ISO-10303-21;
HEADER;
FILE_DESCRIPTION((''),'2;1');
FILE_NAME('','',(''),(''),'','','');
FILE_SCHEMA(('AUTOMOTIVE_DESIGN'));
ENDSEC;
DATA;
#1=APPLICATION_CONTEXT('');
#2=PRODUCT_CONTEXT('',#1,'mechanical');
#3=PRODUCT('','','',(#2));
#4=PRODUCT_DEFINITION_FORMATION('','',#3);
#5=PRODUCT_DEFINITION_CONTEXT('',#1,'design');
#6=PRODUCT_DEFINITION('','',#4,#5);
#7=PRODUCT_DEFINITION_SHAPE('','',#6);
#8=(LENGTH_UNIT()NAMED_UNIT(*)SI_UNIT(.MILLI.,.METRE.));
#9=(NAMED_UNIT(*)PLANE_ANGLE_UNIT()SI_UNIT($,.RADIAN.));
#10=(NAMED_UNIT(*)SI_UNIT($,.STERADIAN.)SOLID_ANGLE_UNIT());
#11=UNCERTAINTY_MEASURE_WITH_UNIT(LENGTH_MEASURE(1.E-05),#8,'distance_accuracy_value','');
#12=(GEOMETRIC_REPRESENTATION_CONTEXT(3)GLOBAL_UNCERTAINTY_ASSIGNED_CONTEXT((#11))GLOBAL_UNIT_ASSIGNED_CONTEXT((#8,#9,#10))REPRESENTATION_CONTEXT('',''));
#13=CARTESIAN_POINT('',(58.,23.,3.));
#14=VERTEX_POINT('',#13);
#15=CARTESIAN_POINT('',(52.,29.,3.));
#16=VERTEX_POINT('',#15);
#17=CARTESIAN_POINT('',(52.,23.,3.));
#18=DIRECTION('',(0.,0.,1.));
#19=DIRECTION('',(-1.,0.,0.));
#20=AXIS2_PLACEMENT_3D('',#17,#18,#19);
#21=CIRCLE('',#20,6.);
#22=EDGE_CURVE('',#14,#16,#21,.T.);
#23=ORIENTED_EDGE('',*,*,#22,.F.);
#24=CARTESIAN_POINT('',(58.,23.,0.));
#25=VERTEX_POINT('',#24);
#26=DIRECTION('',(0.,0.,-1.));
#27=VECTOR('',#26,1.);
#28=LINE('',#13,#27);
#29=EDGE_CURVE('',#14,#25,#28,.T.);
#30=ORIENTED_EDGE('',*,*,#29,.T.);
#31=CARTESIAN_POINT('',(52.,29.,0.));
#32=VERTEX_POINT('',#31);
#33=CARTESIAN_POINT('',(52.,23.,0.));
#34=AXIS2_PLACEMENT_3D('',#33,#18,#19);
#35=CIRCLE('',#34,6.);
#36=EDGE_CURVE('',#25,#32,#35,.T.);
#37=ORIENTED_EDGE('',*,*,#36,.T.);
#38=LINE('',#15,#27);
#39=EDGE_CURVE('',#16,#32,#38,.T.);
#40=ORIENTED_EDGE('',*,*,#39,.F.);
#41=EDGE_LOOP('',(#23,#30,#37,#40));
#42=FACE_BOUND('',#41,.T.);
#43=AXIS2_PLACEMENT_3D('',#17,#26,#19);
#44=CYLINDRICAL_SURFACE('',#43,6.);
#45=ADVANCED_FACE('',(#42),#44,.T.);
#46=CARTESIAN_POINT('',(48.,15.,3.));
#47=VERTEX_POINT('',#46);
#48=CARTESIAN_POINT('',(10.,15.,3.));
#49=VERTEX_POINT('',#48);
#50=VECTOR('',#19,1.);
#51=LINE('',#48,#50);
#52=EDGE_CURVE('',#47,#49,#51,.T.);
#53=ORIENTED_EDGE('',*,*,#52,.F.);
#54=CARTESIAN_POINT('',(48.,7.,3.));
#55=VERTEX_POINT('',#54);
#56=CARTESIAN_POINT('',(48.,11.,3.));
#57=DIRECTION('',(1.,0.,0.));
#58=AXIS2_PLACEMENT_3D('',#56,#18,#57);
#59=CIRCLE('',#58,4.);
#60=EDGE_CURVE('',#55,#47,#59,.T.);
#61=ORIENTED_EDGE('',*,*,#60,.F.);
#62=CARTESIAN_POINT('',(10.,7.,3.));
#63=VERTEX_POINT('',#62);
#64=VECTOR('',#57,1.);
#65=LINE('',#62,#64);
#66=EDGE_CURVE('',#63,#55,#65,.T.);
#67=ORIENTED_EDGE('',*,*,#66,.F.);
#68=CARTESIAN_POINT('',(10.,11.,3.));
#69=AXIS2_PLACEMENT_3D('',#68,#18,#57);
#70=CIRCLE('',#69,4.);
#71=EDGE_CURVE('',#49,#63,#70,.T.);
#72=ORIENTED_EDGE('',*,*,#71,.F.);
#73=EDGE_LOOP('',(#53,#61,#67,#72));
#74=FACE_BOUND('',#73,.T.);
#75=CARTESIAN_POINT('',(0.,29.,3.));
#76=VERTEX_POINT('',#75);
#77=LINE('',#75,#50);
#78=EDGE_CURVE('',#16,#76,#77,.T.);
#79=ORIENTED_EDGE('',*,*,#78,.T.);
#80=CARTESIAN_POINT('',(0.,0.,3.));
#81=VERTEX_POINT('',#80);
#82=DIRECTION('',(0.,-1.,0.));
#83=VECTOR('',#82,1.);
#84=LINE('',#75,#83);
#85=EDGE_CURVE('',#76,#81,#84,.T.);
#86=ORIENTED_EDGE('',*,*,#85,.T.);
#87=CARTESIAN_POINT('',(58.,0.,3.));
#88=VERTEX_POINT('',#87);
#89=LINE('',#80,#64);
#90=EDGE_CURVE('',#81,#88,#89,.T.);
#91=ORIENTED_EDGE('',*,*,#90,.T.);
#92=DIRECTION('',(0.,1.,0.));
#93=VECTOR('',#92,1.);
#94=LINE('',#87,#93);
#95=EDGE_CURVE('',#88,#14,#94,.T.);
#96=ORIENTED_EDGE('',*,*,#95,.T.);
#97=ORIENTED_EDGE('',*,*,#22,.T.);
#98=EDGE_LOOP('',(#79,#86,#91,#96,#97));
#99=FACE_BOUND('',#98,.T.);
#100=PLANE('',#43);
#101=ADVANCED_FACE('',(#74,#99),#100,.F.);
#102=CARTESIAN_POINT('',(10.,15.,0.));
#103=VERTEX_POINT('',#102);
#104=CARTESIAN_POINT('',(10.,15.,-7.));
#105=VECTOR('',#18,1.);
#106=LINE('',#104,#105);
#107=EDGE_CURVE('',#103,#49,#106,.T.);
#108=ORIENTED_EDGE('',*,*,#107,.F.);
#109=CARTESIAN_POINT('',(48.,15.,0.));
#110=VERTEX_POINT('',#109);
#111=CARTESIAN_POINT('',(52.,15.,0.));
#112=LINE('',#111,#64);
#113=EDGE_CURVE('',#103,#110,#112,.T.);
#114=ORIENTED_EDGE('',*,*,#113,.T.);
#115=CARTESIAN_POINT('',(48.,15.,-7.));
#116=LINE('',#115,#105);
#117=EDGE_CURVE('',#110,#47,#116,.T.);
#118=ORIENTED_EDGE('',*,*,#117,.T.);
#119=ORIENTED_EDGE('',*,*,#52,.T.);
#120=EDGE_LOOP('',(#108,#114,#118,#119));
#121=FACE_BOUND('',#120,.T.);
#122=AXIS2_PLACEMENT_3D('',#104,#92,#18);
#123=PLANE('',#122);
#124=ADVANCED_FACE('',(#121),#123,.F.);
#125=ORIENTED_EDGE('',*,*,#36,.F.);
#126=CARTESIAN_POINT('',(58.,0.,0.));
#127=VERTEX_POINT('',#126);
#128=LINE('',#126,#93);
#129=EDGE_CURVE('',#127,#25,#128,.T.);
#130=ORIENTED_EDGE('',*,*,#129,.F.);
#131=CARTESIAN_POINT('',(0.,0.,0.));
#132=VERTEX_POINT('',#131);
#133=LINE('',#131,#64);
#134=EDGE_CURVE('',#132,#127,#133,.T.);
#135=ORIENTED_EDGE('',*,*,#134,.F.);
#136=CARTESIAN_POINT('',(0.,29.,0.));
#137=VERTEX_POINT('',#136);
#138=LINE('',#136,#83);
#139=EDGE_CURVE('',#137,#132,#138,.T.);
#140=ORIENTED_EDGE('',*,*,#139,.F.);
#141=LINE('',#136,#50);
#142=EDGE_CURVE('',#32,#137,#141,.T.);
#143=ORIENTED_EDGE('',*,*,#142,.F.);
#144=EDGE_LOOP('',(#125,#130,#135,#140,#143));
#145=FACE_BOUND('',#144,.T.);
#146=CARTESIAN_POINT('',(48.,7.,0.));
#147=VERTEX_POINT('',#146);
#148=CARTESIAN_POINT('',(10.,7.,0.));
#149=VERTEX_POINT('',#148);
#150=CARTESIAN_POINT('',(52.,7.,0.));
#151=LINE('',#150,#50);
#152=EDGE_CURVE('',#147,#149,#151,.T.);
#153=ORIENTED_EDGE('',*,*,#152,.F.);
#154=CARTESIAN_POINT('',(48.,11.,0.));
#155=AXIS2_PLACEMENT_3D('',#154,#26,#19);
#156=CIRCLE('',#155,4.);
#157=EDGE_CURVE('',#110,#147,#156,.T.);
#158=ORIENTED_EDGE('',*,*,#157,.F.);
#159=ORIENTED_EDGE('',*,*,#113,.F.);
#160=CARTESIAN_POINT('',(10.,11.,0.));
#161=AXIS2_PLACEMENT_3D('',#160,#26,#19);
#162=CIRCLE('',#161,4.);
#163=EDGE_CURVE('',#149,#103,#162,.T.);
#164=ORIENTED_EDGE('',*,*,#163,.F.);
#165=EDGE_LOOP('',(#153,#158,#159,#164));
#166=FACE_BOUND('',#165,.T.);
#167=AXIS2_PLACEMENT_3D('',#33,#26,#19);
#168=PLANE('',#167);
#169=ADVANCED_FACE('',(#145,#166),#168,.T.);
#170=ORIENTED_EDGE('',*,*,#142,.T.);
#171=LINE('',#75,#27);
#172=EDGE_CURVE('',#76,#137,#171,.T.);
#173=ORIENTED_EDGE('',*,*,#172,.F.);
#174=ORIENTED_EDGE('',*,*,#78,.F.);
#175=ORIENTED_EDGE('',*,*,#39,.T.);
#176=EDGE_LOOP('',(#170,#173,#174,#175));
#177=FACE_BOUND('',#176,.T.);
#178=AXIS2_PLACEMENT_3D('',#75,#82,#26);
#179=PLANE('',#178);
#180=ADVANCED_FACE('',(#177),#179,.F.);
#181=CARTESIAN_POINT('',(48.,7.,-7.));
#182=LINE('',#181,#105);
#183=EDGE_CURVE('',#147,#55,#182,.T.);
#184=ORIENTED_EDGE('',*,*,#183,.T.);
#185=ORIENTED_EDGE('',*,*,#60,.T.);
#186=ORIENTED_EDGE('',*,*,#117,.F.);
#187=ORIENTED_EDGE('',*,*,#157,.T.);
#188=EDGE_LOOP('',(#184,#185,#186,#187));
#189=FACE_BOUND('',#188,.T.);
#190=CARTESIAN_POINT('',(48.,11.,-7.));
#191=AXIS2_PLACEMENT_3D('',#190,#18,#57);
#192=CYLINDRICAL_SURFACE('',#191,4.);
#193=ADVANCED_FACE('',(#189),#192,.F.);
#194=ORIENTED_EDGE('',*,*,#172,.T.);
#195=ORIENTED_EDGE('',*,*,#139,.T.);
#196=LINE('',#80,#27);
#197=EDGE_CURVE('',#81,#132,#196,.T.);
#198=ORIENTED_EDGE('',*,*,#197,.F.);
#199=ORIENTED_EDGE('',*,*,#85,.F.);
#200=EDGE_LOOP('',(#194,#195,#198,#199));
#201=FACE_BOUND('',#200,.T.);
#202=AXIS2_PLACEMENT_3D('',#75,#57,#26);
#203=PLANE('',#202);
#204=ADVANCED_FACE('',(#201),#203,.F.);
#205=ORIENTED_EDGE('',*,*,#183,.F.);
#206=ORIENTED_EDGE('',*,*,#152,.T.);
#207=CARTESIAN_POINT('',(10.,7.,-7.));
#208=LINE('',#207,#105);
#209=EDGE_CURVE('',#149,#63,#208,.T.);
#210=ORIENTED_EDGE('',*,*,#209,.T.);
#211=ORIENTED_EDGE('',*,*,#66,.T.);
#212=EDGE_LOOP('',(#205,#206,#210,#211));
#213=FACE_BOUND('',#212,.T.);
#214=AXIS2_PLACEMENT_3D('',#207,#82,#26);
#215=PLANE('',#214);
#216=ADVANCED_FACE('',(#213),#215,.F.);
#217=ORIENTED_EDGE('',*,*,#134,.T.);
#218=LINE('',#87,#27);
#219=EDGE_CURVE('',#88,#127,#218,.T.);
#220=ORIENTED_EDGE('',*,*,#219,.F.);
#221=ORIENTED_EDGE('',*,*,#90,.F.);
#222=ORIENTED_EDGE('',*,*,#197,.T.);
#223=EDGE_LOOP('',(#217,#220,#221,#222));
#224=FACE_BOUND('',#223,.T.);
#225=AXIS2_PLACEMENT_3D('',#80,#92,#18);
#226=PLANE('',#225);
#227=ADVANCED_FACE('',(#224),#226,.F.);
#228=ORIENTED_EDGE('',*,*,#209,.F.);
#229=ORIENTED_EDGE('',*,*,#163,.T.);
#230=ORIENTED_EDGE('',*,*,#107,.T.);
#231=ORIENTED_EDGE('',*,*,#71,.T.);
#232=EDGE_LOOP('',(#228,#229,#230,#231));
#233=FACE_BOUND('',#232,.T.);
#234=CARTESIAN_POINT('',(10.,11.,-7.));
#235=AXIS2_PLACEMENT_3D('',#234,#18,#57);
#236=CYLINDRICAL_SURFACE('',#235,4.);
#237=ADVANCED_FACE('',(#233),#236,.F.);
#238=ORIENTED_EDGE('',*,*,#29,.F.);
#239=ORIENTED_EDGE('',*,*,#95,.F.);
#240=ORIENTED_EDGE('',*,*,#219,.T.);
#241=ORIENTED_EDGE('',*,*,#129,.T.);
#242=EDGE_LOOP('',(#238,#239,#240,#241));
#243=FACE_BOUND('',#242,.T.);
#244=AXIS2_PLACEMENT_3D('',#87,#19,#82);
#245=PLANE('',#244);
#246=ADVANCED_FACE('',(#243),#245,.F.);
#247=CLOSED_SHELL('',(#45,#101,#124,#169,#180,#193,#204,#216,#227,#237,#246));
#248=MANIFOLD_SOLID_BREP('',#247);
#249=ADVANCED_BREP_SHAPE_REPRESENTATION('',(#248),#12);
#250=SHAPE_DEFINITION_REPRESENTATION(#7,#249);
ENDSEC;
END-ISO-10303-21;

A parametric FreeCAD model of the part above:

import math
import FreeCAD as App
import Part
import Sketcher
from FreeCAD import Vector
Q = App.Units.Quantity

doc = App.newDocument("Part")
params = doc.addObject("Spreadsheet::Sheet", "Params")
for row, (alias, value) in enumerate([
    ("sketch1_radius", "6 mm"),
    ("sketch1_width", "52 mm"),
    ("sketch1_height", "29 mm"),
    ("pad1_length", "3 mm"),
    ("sketch2_radius", "4 mm"),
    ("sketch2_width", "38 mm"),
    ("pocket1_length", "10 mm"),
], start=1):
    params.set(f"A{row}", alias)
    params.set(f"B{row}", "=" + value)
    params.setAlias(f"B{row}", alias)

body = doc.addObject("PartDesign::Body", "Body")

sketch1 = doc.addObject("Sketcher::SketchObject", "Sketch")
body.addObject(sketch1)
sketch1.AttachmentSupport = (doc.XY_Plane, [""])
sketch1.MapMode = "FlatFace"
sketch1.addGeometry([
    Part.LineSegment(Vector(52, 29, 0), Vector(0, 29, 0)),
    Part.LineSegment(Vector(0, 29, 0), Vector(0, 0, 0)),
    Part.LineSegment(Vector(0, 0, 0), Vector(58, 0, 0)),
    Part.LineSegment(Vector(58, 0, 0), Vector(58, 23, 0)),
    Part.ArcOfCircle(Part.Circle(Vector(52, 23, 0), Vector(0, 0, 1), 6), math.radians(0), math.radians(90)),
], False)
sketch1.addConstraint([
    Sketcher.Constraint("Coincident", 0, 2, 1, 1),
    Sketcher.Constraint("Coincident", 1, 2, 2, 1),
    Sketcher.Constraint("Coincident", 2, 2, 3, 1),
    Sketcher.Constraint("Tangent", 3, 2, 4, 1),
    Sketcher.Constraint("Tangent", 4, 2, 0, 1),
    Sketcher.Constraint("Horizontal", 0),
    Sketcher.Constraint("Vertical", 1),
    Sketcher.Constraint("Horizontal", 2),
    Sketcher.Constraint("Vertical", 3),
    Sketcher.Constraint("Coincident", 1, 2, -1, 1),
    Sketcher.Constraint("Radius", 4, Q("6 mm")),
    Sketcher.Constraint("DistanceX", 0, 2, 0, 1, Q("52 mm")),
    Sketcher.Constraint("DistanceY", 1, 2, 1, 1, Q("29 mm")),
])
sketch1.setExpression("Constraints[10]", "Params.sketch1_radius")
sketch1.setExpression("Constraints[11]", "Params.sketch1_width")
sketch1.setExpression("Constraints[12]", "Params.sketch1_height")
pad1 = doc.addObject("PartDesign::Pad", "Pad")
body.addObject(pad1)
pad1.Profile = sketch1
pad1.setExpression("Length", "Params.pad1_length")

sketch2 = doc.addObject("Sketcher::SketchObject", "Sketch001")
body.addObject(sketch2)
sketch2.AttachmentSupport = (doc.XY_Plane, [""])
sketch2.MapMode = "FlatFace"
sketch2.AttachmentOffset = App.Placement(Vector(0, 0, 3), App.Rotation())
sketch2.addGeometry([
    Part.LineSegment(Vector(48, 15, 0), Vector(10, 15, 0)),
    Part.ArcOfCircle(Part.Circle(Vector(10, 11, 0), Vector(0, 0, 1), 4), math.radians(90), math.radians(270)),
    Part.LineSegment(Vector(10, 7, 0), Vector(48, 7, 0)),
    Part.ArcOfCircle(Part.Circle(Vector(48, 11, 0), Vector(0, 0, 1), 4), math.radians(-90), math.radians(90)),
], False)
sketch2.addConstraint([
    Sketcher.Constraint("Tangent", 0, 2, 1, 1),
    Sketcher.Constraint("Tangent", 1, 2, 2, 1),
    Sketcher.Constraint("Tangent", 2, 2, 3, 1),
    Sketcher.Constraint("Tangent", 3, 2, 0, 1),
    Sketcher.Constraint("Horizontal", 0),
    Sketcher.Constraint("Horizontal", 2),
    Sketcher.Constraint("Radius", 1, Q("4 mm")),
    Sketcher.Constraint("DistanceX", 0, 2, 0, 1, Q("38 mm")),
    Sketcher.Constraint("DistanceX", -1, 1, 1, 3, Q("10 mm")),
    Sketcher.Constraint("DistanceY", -1, 1, 1, 3, Q("11 mm")),
])
sketch2.setExpression("Constraints[6]", "Params.sketch2_radius")
sketch2.setExpression("Constraints[7]", "Params.sketch2_width")
pocket1 = doc.addObject("PartDesign::Pocket", "Pocket")
body.addObject(pocket1)
pocket1.Profile = sketch2
pocket1.setExpression("Length", "Params.pocket1_length")

doc.recompute()
